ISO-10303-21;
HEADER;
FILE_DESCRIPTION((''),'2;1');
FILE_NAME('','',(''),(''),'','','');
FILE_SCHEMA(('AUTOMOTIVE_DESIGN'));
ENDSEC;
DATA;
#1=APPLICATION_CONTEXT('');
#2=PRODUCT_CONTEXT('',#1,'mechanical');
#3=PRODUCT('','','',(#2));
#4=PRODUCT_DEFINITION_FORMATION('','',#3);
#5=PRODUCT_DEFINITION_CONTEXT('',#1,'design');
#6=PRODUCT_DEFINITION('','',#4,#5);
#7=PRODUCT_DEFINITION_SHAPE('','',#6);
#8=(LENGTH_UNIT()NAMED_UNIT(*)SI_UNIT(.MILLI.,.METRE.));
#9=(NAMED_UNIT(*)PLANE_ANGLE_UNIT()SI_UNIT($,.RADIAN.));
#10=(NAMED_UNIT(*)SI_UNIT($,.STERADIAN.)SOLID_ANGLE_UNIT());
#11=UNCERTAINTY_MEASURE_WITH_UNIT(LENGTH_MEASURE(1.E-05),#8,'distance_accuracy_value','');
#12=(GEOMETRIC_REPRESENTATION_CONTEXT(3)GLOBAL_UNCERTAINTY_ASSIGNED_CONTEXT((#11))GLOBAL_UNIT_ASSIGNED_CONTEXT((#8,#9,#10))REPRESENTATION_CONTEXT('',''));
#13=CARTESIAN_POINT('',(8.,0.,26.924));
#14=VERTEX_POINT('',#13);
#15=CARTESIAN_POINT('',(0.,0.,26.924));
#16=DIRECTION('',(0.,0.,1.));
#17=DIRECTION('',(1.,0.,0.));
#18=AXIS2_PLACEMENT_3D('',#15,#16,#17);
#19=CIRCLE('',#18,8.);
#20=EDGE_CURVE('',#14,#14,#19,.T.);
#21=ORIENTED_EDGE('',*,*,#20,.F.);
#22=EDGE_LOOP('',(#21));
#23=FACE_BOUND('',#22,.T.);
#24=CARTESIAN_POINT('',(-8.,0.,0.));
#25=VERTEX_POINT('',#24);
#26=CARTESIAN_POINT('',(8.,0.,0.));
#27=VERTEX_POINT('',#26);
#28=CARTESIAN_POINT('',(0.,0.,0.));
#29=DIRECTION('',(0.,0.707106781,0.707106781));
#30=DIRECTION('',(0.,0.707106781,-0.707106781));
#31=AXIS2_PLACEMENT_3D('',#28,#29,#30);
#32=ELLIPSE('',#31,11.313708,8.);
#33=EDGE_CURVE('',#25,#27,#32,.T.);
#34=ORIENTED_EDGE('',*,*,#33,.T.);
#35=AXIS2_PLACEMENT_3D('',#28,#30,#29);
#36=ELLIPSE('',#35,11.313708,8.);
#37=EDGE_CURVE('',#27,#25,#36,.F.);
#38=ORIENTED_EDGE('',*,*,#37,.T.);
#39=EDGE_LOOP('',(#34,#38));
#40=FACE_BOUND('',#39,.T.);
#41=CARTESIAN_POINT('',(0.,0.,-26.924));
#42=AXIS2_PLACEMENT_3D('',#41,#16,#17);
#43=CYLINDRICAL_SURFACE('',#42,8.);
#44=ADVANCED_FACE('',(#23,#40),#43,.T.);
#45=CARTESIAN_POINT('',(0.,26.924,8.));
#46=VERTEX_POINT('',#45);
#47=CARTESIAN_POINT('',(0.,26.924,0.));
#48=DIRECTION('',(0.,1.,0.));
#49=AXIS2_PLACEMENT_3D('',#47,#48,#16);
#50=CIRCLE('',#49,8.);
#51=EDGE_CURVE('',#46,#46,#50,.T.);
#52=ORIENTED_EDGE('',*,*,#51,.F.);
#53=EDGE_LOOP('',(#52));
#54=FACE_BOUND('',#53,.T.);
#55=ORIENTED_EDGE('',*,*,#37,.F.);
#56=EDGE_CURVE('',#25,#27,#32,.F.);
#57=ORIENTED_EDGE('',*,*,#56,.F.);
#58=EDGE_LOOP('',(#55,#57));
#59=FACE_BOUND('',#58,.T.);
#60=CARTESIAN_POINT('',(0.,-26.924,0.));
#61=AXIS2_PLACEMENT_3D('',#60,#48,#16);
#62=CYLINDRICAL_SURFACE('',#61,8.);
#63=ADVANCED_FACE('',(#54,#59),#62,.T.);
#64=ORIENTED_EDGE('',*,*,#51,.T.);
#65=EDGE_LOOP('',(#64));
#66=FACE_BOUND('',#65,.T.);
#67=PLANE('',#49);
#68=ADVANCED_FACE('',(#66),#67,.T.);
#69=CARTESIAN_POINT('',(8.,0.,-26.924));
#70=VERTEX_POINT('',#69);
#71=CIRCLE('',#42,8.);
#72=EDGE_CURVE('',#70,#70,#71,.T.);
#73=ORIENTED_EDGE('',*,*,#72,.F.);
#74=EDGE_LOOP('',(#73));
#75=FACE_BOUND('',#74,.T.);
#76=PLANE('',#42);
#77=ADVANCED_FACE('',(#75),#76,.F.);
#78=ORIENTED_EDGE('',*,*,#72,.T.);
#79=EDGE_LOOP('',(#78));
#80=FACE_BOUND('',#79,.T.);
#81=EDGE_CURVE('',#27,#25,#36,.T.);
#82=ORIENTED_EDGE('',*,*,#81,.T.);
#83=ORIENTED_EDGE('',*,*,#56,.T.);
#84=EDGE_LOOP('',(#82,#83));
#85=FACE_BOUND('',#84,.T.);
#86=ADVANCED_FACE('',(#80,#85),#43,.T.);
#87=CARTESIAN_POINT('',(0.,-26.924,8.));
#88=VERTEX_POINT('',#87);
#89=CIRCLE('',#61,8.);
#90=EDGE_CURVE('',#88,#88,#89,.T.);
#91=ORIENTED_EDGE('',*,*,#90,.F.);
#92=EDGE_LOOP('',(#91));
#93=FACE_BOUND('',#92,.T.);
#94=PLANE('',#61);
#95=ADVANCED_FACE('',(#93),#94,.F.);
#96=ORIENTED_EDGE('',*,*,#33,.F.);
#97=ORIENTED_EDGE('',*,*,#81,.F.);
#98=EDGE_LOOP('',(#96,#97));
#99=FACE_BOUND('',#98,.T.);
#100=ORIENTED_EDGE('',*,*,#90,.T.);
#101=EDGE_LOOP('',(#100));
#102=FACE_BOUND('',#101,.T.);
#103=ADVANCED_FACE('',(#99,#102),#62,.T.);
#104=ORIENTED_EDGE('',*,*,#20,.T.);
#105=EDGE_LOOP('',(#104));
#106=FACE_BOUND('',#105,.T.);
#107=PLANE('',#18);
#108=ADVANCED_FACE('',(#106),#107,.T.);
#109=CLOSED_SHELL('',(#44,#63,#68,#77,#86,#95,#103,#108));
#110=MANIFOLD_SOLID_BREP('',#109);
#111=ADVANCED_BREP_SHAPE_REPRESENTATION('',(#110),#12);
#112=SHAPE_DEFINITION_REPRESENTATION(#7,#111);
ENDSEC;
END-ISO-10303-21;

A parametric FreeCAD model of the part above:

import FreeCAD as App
import Part
import Sketcher
Q = App.Units.Quantity

doc = App.newDocument("Part")
body = doc.addObject("PartDesign::Body", "Body")

sketch1 = doc.addObject("Sketcher::SketchObject", "Sketch")
body.addObject(sketch1)
sketch1.AttachmentSupport = (doc.XZ_Plane, [""])
sketch1.MapMode = "FlatFace"
sketch1.addGeometry(Part.Circle(App.Vector(0, 0, 0), App.Vector(0, 0, 1), 8), False)
sketch1.addConstraint([
    Sketcher.Constraint("Coincident", 0, 3, -1, 1),
    Sketcher.Constraint("Diameter", 0, Q("16 mm")),
])
pad1 = doc.addObject("PartDesign::Pad", "Pad")
body.addObject(pad1)
pad1.Profile = sketch1
pad1.Type = "TwoLengths"
pad1.Length = 26.924
pad1.Length2 = 26.924
pad1.Reversed = True

sketch2 = doc.addObject("Sketcher::SketchObject", "Sketch001")
body.addObject(sketch2)
sketch2.AttachmentSupport = (doc.XY_Plane, [""])
sketch2.MapMode = "FlatFace"
sketch2.addGeometry(Part.Circle(App.Vector(0, 0, 0), App.Vector(0, 0, 1), 8), False)
sketch2.addConstraint([
    Sketcher.Constraint("Coincident", 0, 3, -1, 1),
    Sketcher.Constraint("Diameter", 0, Q("16 mm")),
])
pad2 = doc.addObject("PartDesign::Pad", "Pad001")
body.addObject(pad2)
pad2.Profile = sketch2
pad2.Type = "TwoLengths"
pad2.Length = 26.924
pad2.Length2 = 26.924

doc.recompute()
